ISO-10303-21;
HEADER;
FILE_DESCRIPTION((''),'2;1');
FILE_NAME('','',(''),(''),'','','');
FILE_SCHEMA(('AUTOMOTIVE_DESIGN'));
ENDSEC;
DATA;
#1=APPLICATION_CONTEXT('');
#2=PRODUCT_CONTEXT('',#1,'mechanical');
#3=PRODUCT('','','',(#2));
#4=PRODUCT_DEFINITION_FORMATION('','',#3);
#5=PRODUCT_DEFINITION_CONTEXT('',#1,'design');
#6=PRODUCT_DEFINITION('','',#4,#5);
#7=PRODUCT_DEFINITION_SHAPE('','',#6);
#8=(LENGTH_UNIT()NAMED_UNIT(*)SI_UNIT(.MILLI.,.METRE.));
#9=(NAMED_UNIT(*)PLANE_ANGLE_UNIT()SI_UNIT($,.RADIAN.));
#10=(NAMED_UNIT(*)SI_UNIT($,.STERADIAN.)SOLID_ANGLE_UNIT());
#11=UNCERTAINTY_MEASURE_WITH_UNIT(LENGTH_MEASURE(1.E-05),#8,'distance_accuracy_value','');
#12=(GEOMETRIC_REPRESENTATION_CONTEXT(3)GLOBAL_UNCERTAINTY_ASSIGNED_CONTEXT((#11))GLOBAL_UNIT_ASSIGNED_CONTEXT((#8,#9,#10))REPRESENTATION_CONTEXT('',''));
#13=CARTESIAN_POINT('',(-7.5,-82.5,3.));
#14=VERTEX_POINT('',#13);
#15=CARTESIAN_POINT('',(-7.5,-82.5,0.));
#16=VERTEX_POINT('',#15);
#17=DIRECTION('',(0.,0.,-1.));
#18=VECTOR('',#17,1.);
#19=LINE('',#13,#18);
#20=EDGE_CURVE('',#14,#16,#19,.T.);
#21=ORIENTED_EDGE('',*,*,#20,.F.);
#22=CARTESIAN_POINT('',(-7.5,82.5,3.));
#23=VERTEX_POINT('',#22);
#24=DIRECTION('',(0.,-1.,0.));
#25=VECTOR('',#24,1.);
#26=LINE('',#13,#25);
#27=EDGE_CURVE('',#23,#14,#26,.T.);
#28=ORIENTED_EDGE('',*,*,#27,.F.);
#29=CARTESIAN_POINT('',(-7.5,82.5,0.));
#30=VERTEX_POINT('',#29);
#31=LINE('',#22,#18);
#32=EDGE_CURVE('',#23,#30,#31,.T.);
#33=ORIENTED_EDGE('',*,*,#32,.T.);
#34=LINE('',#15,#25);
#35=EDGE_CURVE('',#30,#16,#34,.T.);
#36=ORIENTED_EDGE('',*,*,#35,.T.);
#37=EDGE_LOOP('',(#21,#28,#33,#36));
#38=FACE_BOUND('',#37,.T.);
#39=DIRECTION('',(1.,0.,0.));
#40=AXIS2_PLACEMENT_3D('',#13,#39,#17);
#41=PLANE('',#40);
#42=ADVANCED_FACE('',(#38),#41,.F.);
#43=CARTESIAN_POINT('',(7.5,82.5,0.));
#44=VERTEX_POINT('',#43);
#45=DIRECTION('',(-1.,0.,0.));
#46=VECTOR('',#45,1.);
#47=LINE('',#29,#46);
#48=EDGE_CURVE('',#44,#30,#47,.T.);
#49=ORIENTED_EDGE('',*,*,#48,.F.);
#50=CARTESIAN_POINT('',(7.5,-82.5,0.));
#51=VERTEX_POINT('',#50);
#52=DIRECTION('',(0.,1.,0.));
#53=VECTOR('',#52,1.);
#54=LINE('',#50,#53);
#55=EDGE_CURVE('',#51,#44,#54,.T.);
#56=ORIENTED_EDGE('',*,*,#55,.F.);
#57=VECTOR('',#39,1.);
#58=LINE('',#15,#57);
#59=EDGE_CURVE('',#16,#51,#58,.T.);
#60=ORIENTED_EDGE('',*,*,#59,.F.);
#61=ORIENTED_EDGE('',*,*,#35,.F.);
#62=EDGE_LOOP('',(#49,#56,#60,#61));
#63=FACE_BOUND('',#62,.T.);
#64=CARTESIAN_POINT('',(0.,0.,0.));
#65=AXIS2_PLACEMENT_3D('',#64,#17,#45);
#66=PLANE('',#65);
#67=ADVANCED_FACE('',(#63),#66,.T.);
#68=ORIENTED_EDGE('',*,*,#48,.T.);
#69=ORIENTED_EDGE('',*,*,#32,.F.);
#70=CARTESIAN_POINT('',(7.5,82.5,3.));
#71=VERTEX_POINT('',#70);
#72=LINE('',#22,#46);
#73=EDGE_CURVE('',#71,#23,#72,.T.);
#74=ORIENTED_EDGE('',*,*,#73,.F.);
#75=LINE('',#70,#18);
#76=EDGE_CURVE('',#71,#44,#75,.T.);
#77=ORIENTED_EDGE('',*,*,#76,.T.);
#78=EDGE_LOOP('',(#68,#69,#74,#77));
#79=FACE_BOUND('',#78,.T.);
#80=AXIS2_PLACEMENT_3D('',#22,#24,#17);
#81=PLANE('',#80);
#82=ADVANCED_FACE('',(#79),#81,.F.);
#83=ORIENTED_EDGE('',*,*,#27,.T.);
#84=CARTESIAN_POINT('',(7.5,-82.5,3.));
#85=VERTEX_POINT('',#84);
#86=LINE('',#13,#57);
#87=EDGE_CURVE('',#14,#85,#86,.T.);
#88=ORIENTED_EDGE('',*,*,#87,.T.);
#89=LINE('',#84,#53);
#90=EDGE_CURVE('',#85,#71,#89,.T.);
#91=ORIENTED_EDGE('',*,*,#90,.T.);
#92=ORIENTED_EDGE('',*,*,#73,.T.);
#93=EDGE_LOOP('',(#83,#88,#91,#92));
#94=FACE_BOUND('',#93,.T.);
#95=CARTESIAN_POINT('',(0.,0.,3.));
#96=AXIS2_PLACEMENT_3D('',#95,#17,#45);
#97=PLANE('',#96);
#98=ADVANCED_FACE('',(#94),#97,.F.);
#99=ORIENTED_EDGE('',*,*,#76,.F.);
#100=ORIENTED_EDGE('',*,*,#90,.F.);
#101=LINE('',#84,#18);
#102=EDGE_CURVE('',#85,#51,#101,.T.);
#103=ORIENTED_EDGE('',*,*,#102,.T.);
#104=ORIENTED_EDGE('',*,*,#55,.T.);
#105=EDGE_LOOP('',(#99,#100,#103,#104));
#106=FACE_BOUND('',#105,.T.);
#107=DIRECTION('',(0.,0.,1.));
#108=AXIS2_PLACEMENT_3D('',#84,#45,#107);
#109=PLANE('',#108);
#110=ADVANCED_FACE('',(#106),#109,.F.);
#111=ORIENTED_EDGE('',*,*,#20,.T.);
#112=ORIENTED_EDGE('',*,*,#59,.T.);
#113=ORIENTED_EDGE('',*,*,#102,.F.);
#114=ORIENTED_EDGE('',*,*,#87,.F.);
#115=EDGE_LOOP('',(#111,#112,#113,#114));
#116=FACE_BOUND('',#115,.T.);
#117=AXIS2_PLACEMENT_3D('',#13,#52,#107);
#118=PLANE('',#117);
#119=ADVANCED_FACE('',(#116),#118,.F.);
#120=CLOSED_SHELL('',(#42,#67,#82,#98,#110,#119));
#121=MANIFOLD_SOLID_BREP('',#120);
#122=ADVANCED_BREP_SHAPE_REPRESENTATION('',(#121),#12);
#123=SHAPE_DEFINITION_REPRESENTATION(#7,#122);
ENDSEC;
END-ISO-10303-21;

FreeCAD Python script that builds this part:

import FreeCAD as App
import Part
import Sketcher
from FreeCAD import Vector
Q = App.Units.Quantity


def add_polygon(sketch, points):
    """Adds a closed chain of lines whose ends are joined by coincident constraints."""
    first, n = sketch.GeometryCount, len(points)
    for a, b in zip(points, points[1:] + points[:1]):
        sketch.addGeometry(Part.LineSegment(App.Vector(*a, 0), App.Vector(*b, 0)), False)
    for i in range(n):
        sketch.addConstraint(Sketcher.Constraint("Coincident", first + i, 2, first + (i + 1) % n, 1))

doc = App.newDocument("Part")
body = doc.addObject("PartDesign::Body", "Body")

sketch1 = body.newObject("Sketcher::SketchObject", "Sketch")
sketch1.AttachmentSupport = (doc.getObject("XY_Plane"), [""])
sketch1.MapMode = "FlatFace"
add_polygon(sketch1, [(-7.5, 82.5), (-7.5, -82.5), (7.5, -82.5), (7.5, 82.5)])
sketch1.addConstraint(Sketcher.Constraint("Vertical", 0))
sketch1.addConstraint(Sketcher.Constraint("Horizontal", 1))
sketch1.addConstraint(Sketcher.Constraint("Vertical", 2))
sketch1.addConstraint(Sketcher.Constraint("Horizontal", 3))
sketch1.addConstraint(Sketcher.Constraint("Symmetric", 0, 2, 2, 2, -1, 1))
sketch1.addConstraint(Sketcher.Constraint("DistanceX", 1, 1, 1, 2, Q("15 mm")))
sketch1.addConstraint(Sketcher.Constraint("DistanceY", 0, 2, 0, 1, Q("165 mm")))
pad1 = body.newObject("PartDesign::Pad", "Pad")
pad1.Profile = sketch1
pad1.Length = 3

doc.recompute()
